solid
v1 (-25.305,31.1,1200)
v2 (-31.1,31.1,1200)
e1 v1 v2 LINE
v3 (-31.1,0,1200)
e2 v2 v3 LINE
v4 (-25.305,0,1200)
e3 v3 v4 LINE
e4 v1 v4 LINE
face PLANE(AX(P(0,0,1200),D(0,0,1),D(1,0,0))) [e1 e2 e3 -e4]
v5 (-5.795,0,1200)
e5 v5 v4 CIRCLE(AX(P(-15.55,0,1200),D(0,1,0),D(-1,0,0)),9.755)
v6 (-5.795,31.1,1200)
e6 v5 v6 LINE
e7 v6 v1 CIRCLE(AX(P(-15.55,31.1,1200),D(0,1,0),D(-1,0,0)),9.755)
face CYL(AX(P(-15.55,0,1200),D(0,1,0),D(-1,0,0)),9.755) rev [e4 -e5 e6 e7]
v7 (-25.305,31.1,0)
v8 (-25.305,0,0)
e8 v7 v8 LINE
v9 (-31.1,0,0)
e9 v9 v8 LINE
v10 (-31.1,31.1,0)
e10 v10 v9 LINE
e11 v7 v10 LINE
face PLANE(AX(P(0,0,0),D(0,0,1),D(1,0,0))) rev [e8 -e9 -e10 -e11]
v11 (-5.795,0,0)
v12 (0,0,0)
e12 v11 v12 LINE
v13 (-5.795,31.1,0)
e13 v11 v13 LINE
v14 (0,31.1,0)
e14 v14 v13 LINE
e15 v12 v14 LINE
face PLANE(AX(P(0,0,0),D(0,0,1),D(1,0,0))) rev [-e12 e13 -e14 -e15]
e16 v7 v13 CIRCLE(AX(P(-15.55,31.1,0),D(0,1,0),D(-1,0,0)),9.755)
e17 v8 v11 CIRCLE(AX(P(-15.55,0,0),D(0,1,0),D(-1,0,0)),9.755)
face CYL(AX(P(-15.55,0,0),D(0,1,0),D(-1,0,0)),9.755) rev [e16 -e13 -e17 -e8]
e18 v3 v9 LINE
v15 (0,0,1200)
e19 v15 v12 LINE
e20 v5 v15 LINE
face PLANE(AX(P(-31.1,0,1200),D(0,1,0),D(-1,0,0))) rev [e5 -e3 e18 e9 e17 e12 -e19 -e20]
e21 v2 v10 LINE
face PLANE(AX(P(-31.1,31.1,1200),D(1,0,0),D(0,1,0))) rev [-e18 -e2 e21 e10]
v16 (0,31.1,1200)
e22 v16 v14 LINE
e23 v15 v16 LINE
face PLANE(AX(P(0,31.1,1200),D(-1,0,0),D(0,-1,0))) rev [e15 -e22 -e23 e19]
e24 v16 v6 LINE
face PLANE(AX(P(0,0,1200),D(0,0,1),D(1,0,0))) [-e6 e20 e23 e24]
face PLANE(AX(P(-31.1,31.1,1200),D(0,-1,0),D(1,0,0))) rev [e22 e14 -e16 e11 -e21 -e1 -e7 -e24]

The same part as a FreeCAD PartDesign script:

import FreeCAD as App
import Part
import Sketcher
from FreeCAD import Vector


def add_polygon(sketch, points):
    """Adds a closed chain of lines whose ends are joined by coincident constraints."""
    first, n = sketch.GeometryCount, len(points)
    for a, b in zip(points, points[1:] + points[:1]):
        sketch.addGeometry(Part.LineSegment(App.Vector(*a, 0), App.Vector(*b, 0)), False)
    for i in range(n):
        sketch.addConstraint(Sketcher.Constraint("Coincident", first + i, 2, first + (i + 1) % n, 1))

doc = App.newDocument("Part")
body = doc.addObject("PartDesign::Body", "Body")

# Sketch on XY plane
sketch1 = body.newObject("Sketcher::SketchObject", "Sketch")
sketch1.AttachmentSupport = (doc.getObject("XY_Plane"), [""])
sketch1.MapMode = "FlatFace"
add_polygon(sketch1, [(-31.1, 31.1), (-31.1, 0), (0, 0), (0, 31.1)])  # lines 0-3
sketch1.addConstraint([
    Sketcher.Constraint("Vertical", 0),
    Sketcher.Constraint("Horizontal", 1),
    Sketcher.Constraint("Vertical", 2),
    Sketcher.Constraint("Horizontal", 3),
    Sketcher.Constraint("Coincident", 1, 2, -1, 1),
    Sketcher.Constraint("Equal", 3, 0),
    Sketcher.Constraint("DistanceX", 1, 1, 1, 2, 31.1),
])
pad1 = body.newObject("PartDesign::Pad", "Pad")
pad1.Profile = sketch1
pad1.Length = 1200

# Sketch on XZ plane
sketch2 = body.newObject("Sketcher::SketchObject", "Sketch001")
sketch2.AttachmentSupport = (doc.getObject("XZ_Plane"), [""])
sketch2.MapMode = "FlatFace"
sketch2.AttachmentOffset = App.Placement(Vector(0, 0, -31.1), App.Rotation())
sketch2.addGeometry([
    Part.Circle(Vector(-15.55, 1200, 0), Vector(0, 0, 1), 9.755),
    Part.Circle(Vector(-15.55, 0, 0), Vector(0, 0, 1), 9.755),
], False)
sketch2.addConstraint([
    Sketcher.Constraint("Equal", 0, 1),
    Sketcher.Constraint("PointOnObject", 1, 3, -1),
    Sketcher.Constraint("Vertical", 0, 3, 1, 3),
    Sketcher.Constraint("Diameter", 0, 19.51),
    Sketcher.Constraint("DistanceY", -1, 1, 0, 3, 1200.0),
    Sketcher.Constraint("DistanceX", 0, 3, -1, 1, 15.55),
])
pocket1 = body.newObject("PartDesign::Pocket", "Pocket")
pocket1.Profile = sketch2
pocket1.Length = 31.1
pocket1.Reversed = True

doc.recompute()
